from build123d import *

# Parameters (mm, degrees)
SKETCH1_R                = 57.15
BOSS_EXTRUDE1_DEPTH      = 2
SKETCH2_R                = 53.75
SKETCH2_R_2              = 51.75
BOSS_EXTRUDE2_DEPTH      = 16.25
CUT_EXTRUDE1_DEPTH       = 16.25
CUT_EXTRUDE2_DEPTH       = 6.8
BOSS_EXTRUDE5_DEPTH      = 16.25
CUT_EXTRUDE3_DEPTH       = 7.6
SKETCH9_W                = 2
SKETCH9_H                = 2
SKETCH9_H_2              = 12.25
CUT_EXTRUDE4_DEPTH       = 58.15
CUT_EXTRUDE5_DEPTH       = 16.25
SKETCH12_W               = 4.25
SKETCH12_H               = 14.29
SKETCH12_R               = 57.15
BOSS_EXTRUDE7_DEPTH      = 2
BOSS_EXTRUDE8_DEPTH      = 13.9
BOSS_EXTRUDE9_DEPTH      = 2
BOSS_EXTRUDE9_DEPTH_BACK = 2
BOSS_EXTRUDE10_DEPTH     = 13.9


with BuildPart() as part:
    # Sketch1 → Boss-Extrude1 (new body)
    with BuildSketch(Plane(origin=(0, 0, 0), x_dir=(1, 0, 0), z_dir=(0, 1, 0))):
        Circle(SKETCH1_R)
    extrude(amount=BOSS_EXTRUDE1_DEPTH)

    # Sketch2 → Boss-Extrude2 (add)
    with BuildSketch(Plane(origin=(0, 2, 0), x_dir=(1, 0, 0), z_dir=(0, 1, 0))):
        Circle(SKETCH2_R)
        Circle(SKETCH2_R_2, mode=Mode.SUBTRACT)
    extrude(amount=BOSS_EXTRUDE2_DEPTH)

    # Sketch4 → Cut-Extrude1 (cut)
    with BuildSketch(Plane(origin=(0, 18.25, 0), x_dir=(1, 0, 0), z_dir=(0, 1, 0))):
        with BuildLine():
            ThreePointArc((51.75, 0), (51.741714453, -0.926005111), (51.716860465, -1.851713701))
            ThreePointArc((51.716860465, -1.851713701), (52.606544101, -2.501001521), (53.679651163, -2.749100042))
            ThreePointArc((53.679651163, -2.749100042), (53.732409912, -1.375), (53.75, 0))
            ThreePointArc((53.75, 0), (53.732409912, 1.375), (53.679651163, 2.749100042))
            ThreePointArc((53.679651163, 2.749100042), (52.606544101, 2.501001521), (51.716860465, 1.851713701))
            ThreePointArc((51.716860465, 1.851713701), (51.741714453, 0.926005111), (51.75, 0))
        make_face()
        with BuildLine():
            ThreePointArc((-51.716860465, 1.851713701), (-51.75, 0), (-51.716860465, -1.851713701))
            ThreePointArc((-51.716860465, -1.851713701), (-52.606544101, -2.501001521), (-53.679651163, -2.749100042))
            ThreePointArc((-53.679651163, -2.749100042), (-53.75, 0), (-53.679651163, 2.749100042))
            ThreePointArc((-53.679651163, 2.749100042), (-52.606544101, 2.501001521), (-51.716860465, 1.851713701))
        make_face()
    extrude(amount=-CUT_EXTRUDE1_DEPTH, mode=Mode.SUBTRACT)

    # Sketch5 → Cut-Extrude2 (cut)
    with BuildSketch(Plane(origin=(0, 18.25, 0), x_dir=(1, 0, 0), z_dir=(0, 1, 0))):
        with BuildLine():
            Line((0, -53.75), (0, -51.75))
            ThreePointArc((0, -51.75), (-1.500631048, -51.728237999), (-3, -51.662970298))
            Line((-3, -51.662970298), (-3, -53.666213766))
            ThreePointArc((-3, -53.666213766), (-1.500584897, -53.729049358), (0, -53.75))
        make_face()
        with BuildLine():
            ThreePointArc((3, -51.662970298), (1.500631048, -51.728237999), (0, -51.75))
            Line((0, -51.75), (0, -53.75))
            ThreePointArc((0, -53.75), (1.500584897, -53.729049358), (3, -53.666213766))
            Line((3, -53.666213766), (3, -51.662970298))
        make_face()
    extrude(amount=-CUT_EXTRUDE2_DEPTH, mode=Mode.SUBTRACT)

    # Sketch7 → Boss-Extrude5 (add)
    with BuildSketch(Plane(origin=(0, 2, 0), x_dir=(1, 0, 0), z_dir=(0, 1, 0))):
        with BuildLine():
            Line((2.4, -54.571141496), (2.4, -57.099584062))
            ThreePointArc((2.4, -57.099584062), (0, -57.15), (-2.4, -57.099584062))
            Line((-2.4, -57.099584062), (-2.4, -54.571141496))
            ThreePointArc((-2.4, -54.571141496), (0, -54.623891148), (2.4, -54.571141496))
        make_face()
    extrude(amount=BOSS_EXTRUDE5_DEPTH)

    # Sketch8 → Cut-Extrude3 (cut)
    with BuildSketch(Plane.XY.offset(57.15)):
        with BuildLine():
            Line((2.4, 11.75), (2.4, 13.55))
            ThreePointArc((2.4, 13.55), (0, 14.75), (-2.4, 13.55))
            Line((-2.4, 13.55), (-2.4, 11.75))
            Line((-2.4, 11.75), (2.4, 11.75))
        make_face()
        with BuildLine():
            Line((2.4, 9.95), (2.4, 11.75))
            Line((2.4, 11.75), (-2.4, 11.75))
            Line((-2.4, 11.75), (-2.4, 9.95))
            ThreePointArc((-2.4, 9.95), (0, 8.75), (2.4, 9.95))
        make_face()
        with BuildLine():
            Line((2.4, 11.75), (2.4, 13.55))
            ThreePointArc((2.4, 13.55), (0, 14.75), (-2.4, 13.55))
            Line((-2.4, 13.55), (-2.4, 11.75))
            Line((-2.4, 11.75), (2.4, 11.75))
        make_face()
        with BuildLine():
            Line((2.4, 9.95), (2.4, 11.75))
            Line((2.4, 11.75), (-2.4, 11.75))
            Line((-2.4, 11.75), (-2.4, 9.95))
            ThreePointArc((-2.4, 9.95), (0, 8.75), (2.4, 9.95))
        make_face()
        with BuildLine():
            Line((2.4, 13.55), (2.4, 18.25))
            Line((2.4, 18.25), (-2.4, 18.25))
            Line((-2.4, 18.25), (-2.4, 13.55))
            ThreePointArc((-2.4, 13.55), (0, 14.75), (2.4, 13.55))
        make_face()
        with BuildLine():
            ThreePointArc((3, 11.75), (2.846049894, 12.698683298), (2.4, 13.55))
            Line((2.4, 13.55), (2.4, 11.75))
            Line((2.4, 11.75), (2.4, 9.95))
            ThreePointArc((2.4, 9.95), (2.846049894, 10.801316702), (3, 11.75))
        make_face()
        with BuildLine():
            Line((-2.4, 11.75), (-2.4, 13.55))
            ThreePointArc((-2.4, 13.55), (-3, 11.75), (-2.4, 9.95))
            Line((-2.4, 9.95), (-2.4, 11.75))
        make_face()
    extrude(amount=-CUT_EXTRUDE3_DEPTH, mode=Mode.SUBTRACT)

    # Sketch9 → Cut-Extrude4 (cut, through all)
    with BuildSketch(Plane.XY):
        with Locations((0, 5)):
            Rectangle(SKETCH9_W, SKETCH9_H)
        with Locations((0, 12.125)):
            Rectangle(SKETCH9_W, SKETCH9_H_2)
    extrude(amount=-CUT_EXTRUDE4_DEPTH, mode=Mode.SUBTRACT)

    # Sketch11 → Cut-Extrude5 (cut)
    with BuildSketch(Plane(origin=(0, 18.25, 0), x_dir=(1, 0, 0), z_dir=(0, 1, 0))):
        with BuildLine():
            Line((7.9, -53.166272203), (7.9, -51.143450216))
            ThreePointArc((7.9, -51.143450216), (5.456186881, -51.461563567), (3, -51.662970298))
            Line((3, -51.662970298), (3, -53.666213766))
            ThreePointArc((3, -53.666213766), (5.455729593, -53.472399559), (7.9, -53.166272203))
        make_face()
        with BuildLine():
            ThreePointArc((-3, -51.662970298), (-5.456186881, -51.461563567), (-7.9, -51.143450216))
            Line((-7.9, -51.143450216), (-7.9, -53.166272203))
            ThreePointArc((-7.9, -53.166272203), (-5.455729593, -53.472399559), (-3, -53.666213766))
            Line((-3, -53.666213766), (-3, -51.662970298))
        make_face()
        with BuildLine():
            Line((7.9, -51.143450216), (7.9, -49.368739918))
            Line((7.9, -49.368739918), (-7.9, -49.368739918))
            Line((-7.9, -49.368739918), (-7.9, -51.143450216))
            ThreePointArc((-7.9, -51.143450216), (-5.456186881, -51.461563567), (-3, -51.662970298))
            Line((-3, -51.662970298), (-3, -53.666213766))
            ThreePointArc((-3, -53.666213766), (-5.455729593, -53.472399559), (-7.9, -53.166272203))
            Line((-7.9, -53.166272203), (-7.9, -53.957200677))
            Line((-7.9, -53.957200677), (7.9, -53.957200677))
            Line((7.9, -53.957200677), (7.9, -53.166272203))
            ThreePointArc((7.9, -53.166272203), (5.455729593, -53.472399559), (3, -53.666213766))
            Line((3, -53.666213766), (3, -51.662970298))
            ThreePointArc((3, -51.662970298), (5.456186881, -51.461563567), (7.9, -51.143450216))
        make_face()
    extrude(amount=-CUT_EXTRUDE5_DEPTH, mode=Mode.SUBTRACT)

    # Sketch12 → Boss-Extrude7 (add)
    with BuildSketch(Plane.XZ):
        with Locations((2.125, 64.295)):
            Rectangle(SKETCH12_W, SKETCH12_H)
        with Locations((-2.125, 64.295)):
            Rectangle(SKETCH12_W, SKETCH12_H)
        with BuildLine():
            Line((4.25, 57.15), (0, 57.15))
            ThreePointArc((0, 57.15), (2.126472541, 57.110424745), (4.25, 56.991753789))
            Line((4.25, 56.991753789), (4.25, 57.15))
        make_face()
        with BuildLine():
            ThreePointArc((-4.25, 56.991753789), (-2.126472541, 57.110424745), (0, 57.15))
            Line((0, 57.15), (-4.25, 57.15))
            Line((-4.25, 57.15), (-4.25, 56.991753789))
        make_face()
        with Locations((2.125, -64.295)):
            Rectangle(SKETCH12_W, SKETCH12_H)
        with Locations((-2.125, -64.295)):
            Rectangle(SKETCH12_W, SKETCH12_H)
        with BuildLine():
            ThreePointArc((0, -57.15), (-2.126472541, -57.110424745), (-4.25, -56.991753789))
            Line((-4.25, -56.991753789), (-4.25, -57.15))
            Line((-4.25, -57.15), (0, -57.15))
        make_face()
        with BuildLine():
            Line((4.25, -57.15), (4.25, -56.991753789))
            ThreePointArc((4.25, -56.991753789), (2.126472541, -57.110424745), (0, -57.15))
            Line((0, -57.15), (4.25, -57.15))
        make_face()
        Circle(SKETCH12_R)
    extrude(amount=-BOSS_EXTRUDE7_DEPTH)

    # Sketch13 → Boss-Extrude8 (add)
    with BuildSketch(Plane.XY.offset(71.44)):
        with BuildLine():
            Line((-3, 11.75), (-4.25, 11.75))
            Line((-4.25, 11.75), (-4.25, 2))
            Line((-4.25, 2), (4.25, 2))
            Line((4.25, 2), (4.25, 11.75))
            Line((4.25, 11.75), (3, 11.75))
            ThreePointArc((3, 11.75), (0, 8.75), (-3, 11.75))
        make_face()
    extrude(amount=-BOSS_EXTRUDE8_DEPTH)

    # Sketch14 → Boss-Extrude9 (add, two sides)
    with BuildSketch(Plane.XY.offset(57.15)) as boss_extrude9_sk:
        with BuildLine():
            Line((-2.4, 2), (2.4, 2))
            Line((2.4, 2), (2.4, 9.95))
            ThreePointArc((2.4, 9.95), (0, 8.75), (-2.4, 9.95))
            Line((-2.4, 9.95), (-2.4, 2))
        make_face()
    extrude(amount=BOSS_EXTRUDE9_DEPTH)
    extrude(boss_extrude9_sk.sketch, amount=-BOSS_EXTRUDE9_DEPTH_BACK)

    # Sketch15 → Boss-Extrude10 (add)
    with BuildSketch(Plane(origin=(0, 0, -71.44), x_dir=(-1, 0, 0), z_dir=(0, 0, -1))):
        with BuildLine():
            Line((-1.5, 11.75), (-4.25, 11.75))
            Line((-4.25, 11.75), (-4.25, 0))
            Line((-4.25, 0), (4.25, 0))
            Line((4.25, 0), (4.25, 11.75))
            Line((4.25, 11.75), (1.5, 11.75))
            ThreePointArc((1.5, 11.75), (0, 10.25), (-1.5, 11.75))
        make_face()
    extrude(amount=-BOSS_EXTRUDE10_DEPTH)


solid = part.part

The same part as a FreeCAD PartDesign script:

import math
import FreeCAD as App
import Part
import Sketcher

V = App.Vector
Q = App.Units.Quantity


def add_polygon(sketch, points):
    """Adds a closed chain of lines whose ends are joined by coincident constraints."""
    first, n = sketch.GeometryCount, len(points)
    for a, b in zip(points, points[1:] + points[:1]):
        sketch.addGeometry(Part.LineSegment(App.Vector(*a, 0), App.Vector(*b, 0)), False)
    for i in range(n):
        sketch.addConstraint(Sketcher.Constraint("Coincident", first + i, 2, first + (i + 1) % n, 1))

doc = App.newDocument("Part")
body = doc.addObject("PartDesign::Body", "Body")

sketch1 = body.newObject("Sketcher::SketchObject", "Sketch")
sketch1.AttachmentSupport = (doc.getObject("XZ_Plane"), [""])
sketch1.MapMode = "FlatFace"
sketch1.addGeometry(Part.Circle(V(0, 0, 0), V(0, 0, 1), 57), False)
sketch1.addConstraint(Sketcher.Constraint("Coincident", 0, 3, -1, 1))
sketch1.addConstraint(Sketcher.Constraint("Diameter", 0, Q("114.3 mm")))
pad1 = body.newObject("PartDesign::Pad", "Pad")
pad1.Profile = sketch1
pad1.Length = 2
pad1.Reversed = True

sketch2 = body.newObject("Sketcher::SketchObject", "Sketch001")
sketch2.AttachmentSupport = (doc.getObject("XZ_Plane"), [""])
sketch2.MapMode = "FlatFace"
sketch2.AttachmentOffset = App.Placement(V(0, 0, -2), App.Rotation())
sketch2.addGeometry(Part.Circle(V(0, 0, 0), V(0, 0, 1), 54), False)
sketch2.addGeometry(Part.Circle(V(0, 0, 0), V(0, 0, 1), 52), False)
sketch2.addConstraint(Sketcher.Constraint("Coincident", 0, 3, -1, 1))
sketch2.addConstraint(Sketcher.Constraint("Coincident", 1, 3, -1, 1))
sketch2.addConstraint(Sketcher.Constraint("Diameter", 0, Q("107.5 mm")))
sketch2.addConstraint(Sketcher.Constraint("Diameter", 1, Q("103.5 mm")))
pad2 = body.newObject("PartDesign::Pad", "Pad001")
pad2.Profile = sketch2
pad2.Length = 16.25
pad2.Reversed = True

sketch3 = body.newObject("Sketcher::SketchObject", "Sketch002")
sketch3.AttachmentSupport = (doc.getObject("XZ_Plane"), [""])
sketch3.MapMode = "FlatFace"
sketch3.AttachmentOffset = App.Placement(V(0, 0, -18.25), App.Rotation())
sketch3.addGeometry(Part.ArcOfCircle(Part.Circle(V(0, 0, 0), V(0, 0, 1), 51.7), math.radians(0), math.radians(2.05)), False)
sketch3.addGeometry(Part.ArcOfCircle(Part.Circle(V(53.7, 0, 0), V(0, 0, 1), 2.7), math.radians(91), math.radians(138)), False)
sketch3.addGeometry(Part.ArcOfCircle(Part.Circle(V(0, 0, 0), V(0, 0, 1), 53.8), math.radians(0), math.radians(2.93)), False)
sketch3.addGeometry(Part.ArcOfCircle(Part.Circle(V(0, 0, 0), V(0, 0, 1), 53.8), math.radians(-2.93), math.radians(0)), False)
sketch3.addGeometry(Part.ArcOfCircle(Part.Circle(V(53.7, 0, 0), V(0, 0, 1), 2.7), math.radians(-138), math.radians(-91)), False)
sketch3.addGeometry(Part.ArcOfCircle(Part.Circle(V(0, 0, 0), V(0, 0, 1), 51.7), math.radians(-2.05), math.radians(0)), False)
sketch3.addGeometry(Part.ArcOfCircle(Part.Circle(V(0, 0, 0), V(0, 0, 1), 51.7), math.radians(177.95), math.radians(182.05)), False)
sketch3.addGeometry(Part.ArcOfCircle(Part.Circle(V(-53.7, 0, 0), V(0, 0, 1), 2.7), math.radians(-89), math.radians(-42)), False)
sketch3.addGeometry(Part.ArcOfCircle(Part.Circle(V(0, 0, 0), V(0, 0, 1), 53.8), math.radians(177.07), math.radians(182.93)), False)
sketch3.addGeometry(Part.ArcOfCircle(Part.Circle(V(-53.7, 0, 0), V(0, 0, 1), 2.7), math.radians(42), math.radians(89)), False)
sketch3.addConstraint(Sketcher.Constraint("Coincident", 0, 2, 1, 2))
sketch3.addConstraint(Sketcher.Constraint("Coincident", 1, 1, 2, 2))
sketch3.addConstraint(Sketcher.Constraint("Tangent", 2, 1, 3, 2))
sketch3.addConstraint(Sketcher.Constraint("Coincident", 3, 1, 4, 2))
sketch3.addConstraint(Sketcher.Constraint("Coincident", 4, 1, 5, 1))
sketch3.addConstraint(Sketcher.Constraint("Tangent", 5, 2, 0, 1))
sketch3.addConstraint(Sketcher.Constraint("Coincident", 6, 2, 7, 2))
sketch3.addConstraint(Sketcher.Constraint("Coincident", 7, 1, 8, 2))
sketch3.addConstraint(Sketcher.Constraint("Coincident", 8, 1, 9, 2))
sketch3.addConstraint(Sketcher.Constraint("Coincident", 9, 1, 6, 1))
sketch3.addConstraint(Sketcher.Constraint("Coincident", 0, 3, -1, 1))
sketch3.addConstraint(Sketcher.Constraint("Coincident", 2, 3, -1, 1))
sketch3.addConstraint(Sketcher.Constraint("Coincident", 6, 3, -1, 1))
sketch3.addConstraint(Sketcher.Constraint("Coincident", 8, 3, -1, 1))
sketch3.addConstraint(Sketcher.Constraint("Coincident", 4, 3, 1, 3))
sketch3.addConstraint(Sketcher.Constraint("Coincident", 9, 3, 7, 3))
sketch3.addConstraint(Sketcher.Constraint("Coincident", 2, 1, 1, 3))
sketch3.addConstraint(Sketcher.Constraint("Equal", 2, 3))
sketch3.addConstraint(Sketcher.Constraint("Equal", 1, 4))
sketch3.addConstraint(Sketcher.Constraint("Equal", 0, 5))
sketch3.addConstraint(Sketcher.Constraint("Equal", 5, 6))
sketch3.addConstraint(Sketcher.Constraint("Equal", 4, 7))
sketch3.addConstraint(Sketcher.Constraint("Equal", 3, 8))
sketch3.addConstraint(Sketcher.Constraint("Equal", 7, 9))
sketch3.addConstraint(Sketcher.Constraint("Symmetric", 1, 3, 7, 3, -1, 1))
sketch3.addConstraint(Sketcher.Constraint("PointOnObject", 1, 3, -1))
sketch3.addConstraint(Sketcher.Constraint("PointOnObject", 5, 2, -1))
sketch3.addConstraint(Sketcher.Constraint("Radius", 0, Q("51.75 mm")))
sketch3.addConstraint(Sketcher.Constraint("Radius", 1, Q("2.75 mm")))
sketch3.addConstraint(Sketcher.Constraint("Radius", 2, Q("53.750002 mm")))
pocket1 = body.newObject("PartDesign::Pocket", "Pocket")
pocket1.Profile = sketch3
pocket1.Length = 16.25
pocket1.Reversed = True

sketch4 = body.newObject("Sketcher::SketchObject", "Sketch003")
sketch4.AttachmentSupport = (doc.getObject("XZ_Plane"), [""])
sketch4.MapMode = "FlatFace"
sketch4.AttachmentOffset = App.Placement(V(0, 0, -18.25), App.Rotation())
sketch4.addGeometry(Part.ArcOfCircle(Part.Circle(V(0, 0, 0), V(0, 0, 1), 51.7), math.radians(90), math.radians(93.32)), False)
sketch4.addGeometry(Part.LineSegment(V(-3, 51.7, 0), V(-3, 53.7, 0)), False)
sketch4.addGeometry(Part.ArcOfCircle(Part.Circle(V(0, 0, 0), V(0, 0, 1), 53.8), math.radians(90), math.radians(93.2)), False)
sketch4.addGeometry(Part.ArcOfCircle(Part.Circle(V(0, 0, 0), V(0, 0, 1), 53.8), math.radians(86.8), math.radians(90)), False)
sketch4.addGeometry(Part.LineSegment(V(3, 53.7, 0), V(3, 51.7, 0)), False)
sketch4.addGeometry(Part.ArcOfCircle(Part.Circle(V(0, 0, 0), V(0, 0, 1), 51.7), math.radians(86.68), math.radians(90)), False)
sketch4.addConstraint(Sketcher.Constraint("Coincident", 0, 2, 1, 1))
sketch4.addConstraint(Sketcher.Constraint("Coincident", 1, 2, 2, 2))
sketch4.addConstraint(Sketcher.Constraint("Tangent", 2, 1, 3, 2))
sketch4.addConstraint(Sketcher.Constraint("Coincident", 3, 1, 4, 1))
sketch4.addConstraint(Sketcher.Constraint("Coincident", 4, 2, 5, 1))
sketch4.addConstraint(Sketcher.Constraint("Tangent", 5, 2, 0, 1))
sketch4.addConstraint(Sketcher.Constraint("Vertical", 1))
sketch4.addConstraint(Sketcher.Constraint("Vertical", 4))
sketch4.addConstraint(Sketcher.Constraint("Coincident", 0, 3, -1, 1))
sketch4.addConstraint(Sketcher.Constraint("Coincident", 2, 3, -1, 1))
sketch4.addConstraint(Sketcher.Constraint("Equal", 2, 3))
sketch4.addConstraint(Sketcher.Constraint("Equal", 0, 5))
sketch4.addConstraint(Sketcher.Constraint("PointOnObject", 2, 1, -2))
sketch4.addConstraint(Sketcher.Constraint("PointOnObject", 5, 2, -2))
sketch4.addConstraint(Sketcher.Constraint("Horizontal", 1, 2, 3, 1))
sketch4.addConstraint(Sketcher.Constraint("Radius", 0, Q("51.75 mm")))
sketch4.addConstraint(Sketcher.Constraint("Radius", 2, Q("53.750001 mm")))
sketch4.addConstraint(Sketcher.Constraint("DistanceX", 0, 2, -1, 1, Q("3 mm")))
pocket2 = body.newObject("PartDesign::Pocket", "Pocket001")
pocket2.Profile = sketch4
pocket2.Length = 6.8
pocket2.Reversed = True

sketch5 = body.newObject("Sketcher::SketchObject", "Sketch004")
sketch5.AttachmentSupport = (doc.getObject("XZ_Plane"), [""])
sketch5.MapMode = "FlatFace"
sketch5.AttachmentOffset = App.Placement(V(0, 0, -2), App.Rotation())
sketch5.addGeometry(Part.LineSegment(V(2.4, 57.1, 0), V(2.4, 54.6, 0)), False)
sketch5.addGeometry(Part.ArcOfCircle(Part.Circle(V(0, 0, 0), V(0, 0, 1), 54.6), math.radians(87.48), math.radians(92.52)), False)
sketch5.addGeometry(Part.LineSegment(V(-2.4, 54.6, 0), V(-2.4, 57.1, 0)), False)
sketch5.addGeometry(Part.ArcOfCircle(Part.Circle(V(0, 0, 0), V(0, 0, 1), 57.2), math.radians(87.59), math.radians(92.41)), False)
sketch5.addConstraint(Sketcher.Constraint("Coincident", 0, 2, 1, 1))
sketch5.addConstraint(Sketcher.Constraint("Coincident", 1, 2, 2, 1))
sketch5.addConstraint(Sketcher.Constraint("Coincident", 2, 2, 3, 2))
sketch5.addConstraint(Sketcher.Constraint("Coincident", 3, 1, 0, 1))
sketch5.addConstraint(Sketcher.Constraint("Vertical", 0))
sketch5.addConstraint(Sketcher.Constraint("Vertical", 2))
sketch5.addConstraint(Sketcher.Constraint("Coincident", 1, 3, -1, 1))
sketch5.addConstraint(Sketcher.Constraint("Coincident", 3, 3, -1, 1))
sketch5.addConstraint(Sketcher.Constraint("Horizontal", 0, 2, 1, 2))
sketch5.addConstraint(Sketcher.Constraint("Radius", 3, Q("57.150001 mm")))
sketch5.addConstraint(Sketcher.Constraint("DistanceX", -1, 1, 0, 2, Q("2.4 mm")))
sketch5.addConstraint(Sketcher.Constraint("Radius", 1, Q("54.623891 mm")))
pad3 = body.newObject("PartDesign::Pad", "Pad002")
pad3.Profile = sketch5
pad3.Length = 16.25
pad3.Reversed = True

sketch6 = body.newObject("Sketcher::SketchObject", "Sketch005")
sketch6.AttachmentSupport = (doc.getObject("XY_Plane"), [""])
sketch6.MapMode = "FlatFace"
sketch6.AttachmentOffset = App.Placement(V(0, 0, 57.15), App.Rotation())
sketch6.addGeometry(Part.ArcOfCircle(Part.Circle(V(0, 11.8, 0), V(0, 0, 1), 3), math.radians(-37), math.radians(0)), False)
sketch6.addGeometry(Part.ArcOfCircle(Part.Circle(V(0, 11.7, 0), V(0, 0, 1), 3), math.radians(0), math.radians(37)), False)
sketch6.addGeometry(Part.LineSegment(V(2.4, 13.6, 0), V(2.4, 18.2, 0)), False)
sketch6.addGeometry(Part.LineSegment(V(2.4, 18.2, 0), V(-2.4, 18.2, 0)), False)
sketch6.addGeometry(Part.LineSegment(V(-2.4, 18.2, 0), V(-2.4, 13.6, 0)), False)
sketch6.addGeometry(Part.ArcOfCircle(Part.Circle(V(0, 11.8, 0), V(0, 0, 1), 3), math.radians(143), math.radians(323)), False)
sketch6.addConstraint(Sketcher.Constraint("Tangent", 0, 2, 1, 1))
sketch6.addConstraint(Sketcher.Constraint("Coincident", 1, 2, 2, 1))
sketch6.addConstraint(Sketcher.Constraint("Coincident", 2, 2, 3, 1))
sketch6.addConstraint(Sketcher.Constraint("Coincident", 3, 2, 4, 1))
sketch6.addConstraint(Sketcher.Constraint("Coincident", 4, 2, 5, 1))
sketch6.addConstraint(Sketcher.Constraint("Tangent", 5, 2, 0, 1))
sketch6.addConstraint(Sketcher.Constraint("Vertical", 2))
sketch6.addConstraint(Sketcher.Constraint("Horizontal", 3))
sketch6.addConstraint(Sketcher.Constraint("Vertical", 4))
sketch6.addConstraint(Sketcher.Constraint("Equal", 0, 1))
sketch6.addConstraint(Sketcher.Constraint("Equal", 1, 5))
sketch6.addConstraint(Sketcher.Constraint("Symmetric", 1, 2, 4, 2, -2))
sketch6.addConstraint(Sketcher.Constraint("Horizontal", 5, 3, 0, 2))
sketch6.addConstraint(Sketcher.Constraint("Vertical", 2, 2, 5, 2))
sketch6.addConstraint(Sketcher.Constraint("Radius", 0, Q("3 mm")))
sketch6.addConstraint(Sketcher.Constraint("DistanceX", 3, 2, 3, 1, Q("4.8 mm")))
sketch6.addConstraint(Sketcher.Constraint("DistanceY", 2, 1, 2, 2, Q("4.7 mm")))
sketch6.addConstraint(Sketcher.Constraint("DistanceY", -1, 1, 0, 3, Q("11.75 mm")))
pocket3 = body.newObject("PartDesign::Pocket", "Pocket002")
pocket3.Profile = sketch6
pocket3.Length = 7.6

sketch7 = body.newObject("Sketcher::SketchObject", "Sketch006")
sketch7.AttachmentSupport = (doc.getObject("XY_Plane"), [""])
sketch7.MapMode = "FlatFace"
add_polygon(sketch7, [(-1, 4), (1, 4), (1, 18.2), (-1, 18.2)])
sketch7.addConstraint(Sketcher.Constraint("Horizontal", 0))
sketch7.addConstraint(Sketcher.Constraint("Vertical", 1))
sketch7.addConstraint(Sketcher.Constraint("Horizontal", 2))
sketch7.addConstraint(Sketcher.Constraint("Vertical", 3))
sketch7.addConstraint(Sketcher.Constraint("DistanceX", 0, 1, 0, 2, Q("2 mm")))
sketch7.addConstraint(Sketcher.Constraint("DistanceX", -1, 1, 0, 2, Q("1 mm")))
sketch7.addConstraint(Sketcher.Constraint("DistanceY", -1, 1, 0, 2, Q("4 mm")))
sketch7.addConstraint(Sketcher.Constraint("DistanceY", 1, 1, 1, 2, Q("14.25 mm")))
pocket4 = body.newObject("PartDesign::Pocket", "Pocket003")
pocket4.Profile = sketch7
pocket4.Type = "ThroughAll"

sketch8 = body.newObject("Sketcher::SketchObject", "Sketch007")
sketch8.AttachmentSupport = (doc.getObject("XZ_Plane"), [""])
sketch8.MapMode = "FlatFace"
sketch8.AttachmentOffset = App.Placement(V(0, 0, -18.25), App.Rotation())
add_polygon(sketch8, [(7.9, 49.4), (-7.9, 49.4), (-7.9, 54), (7.9, 54)])
sketch8.addConstraint(Sketcher.Constraint("Horizontal", 0))
sketch8.addConstraint(Sketcher.Constraint("Vertical", 1))
sketch8.addConstraint(Sketcher.Constraint("Horizontal", 2))
sketch8.addConstraint(Sketcher.Constraint("Vertical", 3))
sketch8.addConstraint(Sketcher.Constraint("DistanceX", 0, 2, 0, 1, Q("15.8 mm")))
sketch8.addConstraint(Sketcher.Constraint("DistanceX", 0, 2, -1, 1, Q("7.9 mm")))
sketch8.addConstraint(Sketcher.Constraint("DistanceY", 1, 1, 1, 2, Q("4.588461 mm")))
sketch8.addConstraint(Sketcher.Constraint("DistanceY", -1, 1, 1, 2, Q("53.957201 mm")))
pocket5 = body.newObject("PartDesign::Pocket", "Pocket004")
pocket5.Profile = sketch8
pocket5.Length = 16.25
pocket5.Reversed = True

sketch9 = body.newObject("Sketcher::SketchObject", "Sketch008")
sketch9.AttachmentSupport = (doc.getObject("XZ_Plane"), [""])
sketch9.MapMode = "FlatFace"
sketch9.addGeometry(Part.LineSegment(V(4, 71, 0), V(-4, 71, 0)), False)
sketch9.addGeometry(Part.LineSegment(V(-4, 71, 0), V(-4, 57, 0)), False)
sketch9.addGeometry(Part.ArcOfCircle(Part.Circle(V(0, 0, 0), V(0, 0, 1), 57), math.radians(94), math.radians(266)), False)
sketch9.addGeometry(Part.LineSegment(V(-4, -57, 0), V(-4, -71, 0)), False)
sketch9.addGeometry(Part.LineSegment(V(-4, -71, 0), V(4, -71, 0)), False)
sketch9.addGeometry(Part.LineSegment(V(4, -71, 0), V(4, -57, 0)), False)
sketch9.addGeometry(Part.ArcOfCircle(Part.Circle(V(0, 0, 0), V(0, 0, 1), 57), math.radians(-86), math.radians(86)), False)
sketch9.addGeometry(Part.LineSegment(V(4, 57, 0), V(4, 71, 0)), False)
sketch9.addConstraint(Sketcher.Constraint("Coincident", 0, 2, 1, 1))
sketch9.addConstraint(Sketcher.Constraint("Coincident", 1, 2, 2, 1))
sketch9.addConstraint(Sketcher.Constraint("Coincident", 2, 2, 3, 1))
sketch9.addConstraint(Sketcher.Constraint("Coincident", 3, 2, 4, 1))
sketch9.addConstraint(Sketcher.Constraint("Coincident", 4, 2, 5, 1))
sketch9.addConstraint(Sketcher.Constraint("Coincident", 5, 2, 6, 1))
sketch9.addConstraint(Sketcher.Constraint("Coincident", 6, 2, 7, 1))
sketch9.addConstraint(Sketcher.Constraint("Coincident", 7, 2, 0, 1))
sketch9.addConstraint(Sketcher.Constraint("Horizontal", 0))
sketch9.addConstraint(Sketcher.Constraint("Vertical", 1))
sketch9.addConstraint(Sketcher.Constraint("Vertical", 3))
sketch9.addConstraint(Sketcher.Constraint("Horizontal", 4))
sketch9.addConstraint(Sketcher.Constraint("Vertical", 5))
sketch9.addConstraint(Sketcher.Constraint("Vertical", 7))
sketch9.addConstraint(Sketcher.Constraint("Coincident", 2, 3, -1, 1))
sketch9.addConstraint(Sketcher.Constraint("Coincident", 6, 3, -1, 1))
sketch9.addConstraint(Sketcher.Constraint("Equal", 2, 6))
sketch9.addConstraint(Sketcher.Constraint("Symmetric", 0, 2, 4, 2, -1, 1))
sketch9.addConstraint(Sketcher.Constraint("Horizontal", 2, 2, 5, 2))
sketch9.addConstraint(Sketcher.Constraint("Horizontal", 1, 2, 6, 2))
sketch9.addConstraint(Sketcher.Constraint("Radius", 2, Q("57.15 mm")))
sketch9.addConstraint(Sketcher.Constraint("DistanceX", 0, 2, 0, 1, Q("8.5 mm")))
sketch9.addConstraint(Sketcher.Constraint("DistanceY", -1, 1, 0, 2, Q("71.44 mm")))
pad4 = body.newObject("PartDesign::Pad", "Pad003")
pad4.Profile = sketch9
pad4.Length = 2
pad4.Reversed = True

sketch10 = body.newObject("Sketcher::SketchObject", "Sketch009")
sketch10.AttachmentSupport = (doc.getObject("XY_Plane"), [""])
sketch10.MapMode = "FlatFace"
sketch10.AttachmentOffset = App.Placement(V(0, 0, 71.44), App.Rotation())
sketch10.addGeometry(Part.LineSegment(V(-3, 11.8, 0), V(-4.2, 11.8, 0)), False)
sketch10.addGeometry(Part.LineSegment(V(-4.2, 11.8, 0), V(-4.2, 2, 0)), False)
sketch10.addGeometry(Part.LineSegment(V(-4.2, 2, 0), V(4.2, 2, 0)), False)
sketch10.addGeometry(Part.LineSegment(V(4.2, 2, 0), V(4.2, 11.8, 0)), False)
sketch10.addGeometry(Part.LineSegment(V(4.2, 11.8, 0), V(3, 11.8, 0)), False)
sketch10.addGeometry(Part.ArcOfCircle(Part.Circle(V(0, 11.8, 0), V(0, 0, 1), 3), math.radians(180), math.radians(360)), False)
sketch10.addConstraint(Sketcher.Constraint("Coincident", 0, 2, 1, 1))
sketch10.addConstraint(Sketcher.Constraint("Coincident", 1, 2, 2, 1))
sketch10.addConstraint(Sketcher.Constraint("Coincident", 2, 2, 3, 1))
sketch10.addConstraint(Sketcher.Constraint("Coincident", 3, 2, 4, 1))
sketch10.addConstraint(Sketcher.Constraint("Coincident", 4, 2, 5, 2))
sketch10.addConstraint(Sketcher.Constraint("Coincident", 5, 1, 0, 1))
sketch10.addConstraint(Sketcher.Constraint("Horizontal", 0))
sketch10.addConstraint(Sketcher.Constraint("Vertical", 1))
sketch10.addConstraint(Sketcher.Constraint("Horizontal", 2))
sketch10.addConstraint(Sketcher.Constraint("Vertical", 3))
sketch10.addConstraint(Sketcher.Constraint("Horizontal", 4))
sketch10.addConstraint(Sketcher.Constraint("Symmetric", 0, 2, 3, 2, -2))
sketch10.addConstraint(Sketcher.Constraint("PointOnObject", 5, 3, -2))
sketch10.addConstraint(Sketcher.Constraint("Horizontal", 5, 3, 0, 2))
sketch10.addConstraint(Sketcher.Constraint("Radius", 5, Q("3 mm")))
sketch10.addConstraint(Sketcher.Constraint("DistanceX", 2, 1, 2, 2, Q("8.5 mm")))
sketch10.addConstraint(Sketcher.Constraint("DistanceY", -1, 1, 1, 2, Q("2 mm")))
sketch10.addConstraint(Sketcher.Constraint("DistanceY", 1, 2, 1, 1, Q("9.75 mm")))
pad5 = body.newObject("PartDesign::Pad", "Pad004")
pad5.Profile = sketch10
pad5.Length = 13.9
pad5.Reversed = True

sketch11 = body.newObject("Sketcher::SketchObject", "Sketch010")
sketch11.AttachmentSupport = (doc.getObject("XY_Plane"), [""])
sketch11.MapMode = "FlatFace"
sketch11.AttachmentOffset = App.Placement(V(0, 0, 57.15), App.Rotation())
sketch11.addGeometry(Part.LineSegment(V(-2.4, 2, 0), V(2.4, 2, 0)), False)
sketch11.addGeometry(Part.LineSegment(V(2.4, 2, 0), V(2.4, 9.9, 0)), False)
sketch11.addGeometry(Part.ArcOfCircle(Part.Circle(V(0, 11.8, 0), V(0, 0, 1), 3), math.radians(-143), math.radians(-37)), False)
sketch11.addGeometry(Part.LineSegment(V(-2.4, 9.9, 0), V(-2.4, 2, 0)), False)
sketch11.addConstraint(Sketcher.Constraint("Coincident", 0, 2, 1, 1))
sketch11.addConstraint(Sketcher.Constraint("Coincident", 1, 2, 2, 2))
sketch11.addConstraint(Sketcher.Constraint("Coincident", 2, 1, 3, 1))
sketch11.addConstraint(Sketcher.Constraint("Coincident", 3, 2, 0, 1))
sketch11.addConstraint(Sketcher.Constraint("Horizontal", 0))
sketch11.addConstraint(Sketcher.Constraint("Vertical", 1))
sketch11.addConstraint(Sketcher.Constraint("Vertical", 3))
sketch11.addConstraint(Sketcher.Constraint("Symmetric", 1, 2, 2, 1, -2))
sketch11.addConstraint(Sketcher.Constraint("Radius", 2, Q("3 mm")))
sketch11.addConstraint(Sketcher.Constraint("DistanceX", 0, 1, 0, 2, Q("4.8 mm")))
sketch11.addConstraint(Sketcher.Constraint("DistanceY", -1, 1, 0, 2, Q("2 mm")))
sketch11.addConstraint(Sketcher.Constraint("DistanceY", 1, 1, 1, 2, Q("7.95 mm")))
pad6 = body.newObject("PartDesign::Pad", "Pad005")
pad6.Profile = sketch11
pad6.Type = "TwoLengths"
pad6.Length = 2
pad6.Length2 = 2

sketch12 = body.newObject("Sketcher::SketchObject", "Sketch011")
sketch12.AttachmentSupport = (doc.getObject("XY_Plane"), [""])
sketch12.MapMode = "FlatFace"
sketch12.AttachmentOffset = App.Placement(V(0, 0, -71.44), App.Rotation())
sketch12.addGeometry(Part.LineSegment(V(1.5, 11.8, 0), V(4.2, 11.8, 0)), False)
sketch12.addGeometry(Part.LineSegment(V(4.2, 11.8, 0), V(4.2, 0, 0)), False)
sketch12.addGeometry(Part.LineSegment(V(4.2, 0, 0), V(-4.2, 0, 0)), False)
sketch12.addGeometry(Part.LineSegment(V(-4.2, 0, 0), V(-4.2, 11.8, 0)), False)
sketch12.addGeometry(Part.LineSegment(V(-4.2, 11.8, 0), V(-1.5, 11.8, 0)), False)
sketch12.addGeometry(Part.ArcOfCircle(Part.Circle(V(0, 11.8, 0), V(0, 0, 1), 1.5), math.radians(180), math.radians(360)), False)
sketch12.addConstraint(Sketcher.Constraint("Coincident", 0, 2, 1, 1))
sketch12.addConstraint(Sketcher.Constraint("Coincident", 1, 2, 2, 1))
sketch12.addConstraint(Sketcher.Constraint("Coincident", 2, 2, 3, 1))
sketch12.addConstraint(Sketcher.Constraint("Coincident", 3, 2, 4, 1))
sketch12.addConstraint(Sketcher.Constraint("Coincident", 4, 2, 5, 1))
sketch12.addConstraint(Sketcher.Constraint("Coincident", 5, 2, 0, 1))
sketch12.addConstraint(Sketcher.Constraint("Horizontal", 0))
sketch12.addConstraint(Sketcher.Constraint("Vertical", 1))
sketch12.addConstraint(Sketcher.Constraint("Horizontal", 2))
sketch12.addConstraint(Sketcher.Constraint("Vertical", 3))
sketch12.addConstraint(Sketcher.Constraint("Horizontal", 4))
sketch12.addConstraint(Sketcher.Constraint("Symmetric", 1, 2, 2, 2, -1, 1))
sketch12.addConstraint(Sketcher.Constraint("Symmetric", 4, 2, 5, 2, -2))
sketch12.addConstraint(Sketcher.Constraint("Horizontal", 5, 3, 0, 2))
sketch12.addConstraint(Sketcher.Constraint("Radius", 5, Q("1.5 mm")))
sketch12.addConstraint(Sketcher.Constraint("DistanceX", 2, 2, 2, 1, Q("8.5 mm")))
sketch12.addConstraint(Sketcher.Constraint("DistanceY", 1, 2, 1, 1, Q("11.75 mm")))
pad7 = body.newObject("PartDesign::Pad", "Pad006")
pad7.Profile = sketch12
pad7.Length = 13.9

doc.recompute()
